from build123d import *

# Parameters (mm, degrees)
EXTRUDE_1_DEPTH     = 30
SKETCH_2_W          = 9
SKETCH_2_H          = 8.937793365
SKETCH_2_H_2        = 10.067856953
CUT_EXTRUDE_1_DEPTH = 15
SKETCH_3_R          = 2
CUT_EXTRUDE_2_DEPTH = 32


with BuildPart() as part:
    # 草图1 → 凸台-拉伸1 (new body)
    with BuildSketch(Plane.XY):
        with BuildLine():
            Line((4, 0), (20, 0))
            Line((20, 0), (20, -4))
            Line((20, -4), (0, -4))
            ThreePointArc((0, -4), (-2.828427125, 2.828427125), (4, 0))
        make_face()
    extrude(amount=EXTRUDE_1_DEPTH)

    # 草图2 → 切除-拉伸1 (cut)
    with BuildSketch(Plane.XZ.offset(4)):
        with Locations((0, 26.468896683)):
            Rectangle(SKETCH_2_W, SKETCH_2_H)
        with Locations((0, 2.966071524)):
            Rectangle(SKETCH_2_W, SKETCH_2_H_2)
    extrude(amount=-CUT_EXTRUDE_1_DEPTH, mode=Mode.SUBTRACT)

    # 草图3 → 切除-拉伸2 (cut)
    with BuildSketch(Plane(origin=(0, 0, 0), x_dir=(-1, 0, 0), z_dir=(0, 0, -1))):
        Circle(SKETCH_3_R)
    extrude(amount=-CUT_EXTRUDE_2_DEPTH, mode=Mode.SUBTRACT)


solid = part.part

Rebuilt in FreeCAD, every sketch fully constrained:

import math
import FreeCAD as App
import Part
import Sketcher
from FreeCAD import Vector

doc = App.newDocument("Part")
body = doc.addObject("PartDesign::Body", "Body")

# Sketch on XY plane
sketch1 = body.newObject("Sketcher::SketchObject", "Sketch")
sketch1.AttachmentSupport = (doc.getObject("XY_Plane"), [""])
sketch1.MapMode = "FlatFace"
sketch1.addGeometry(Part.LineSegment(Vector(20, 0, 0), Vector(4, 0, 0)), False)
sketch1.addGeometry(Part.ArcOfCircle(Part.Circle(Vector(0, 0, 0), Vector(0, 0, 1), 4), math.radians(0), math.radians(270)), False)
sketch1.addGeometry(Part.LineSegment(Vector(0, -4, 0), Vector(20, -4, 0)), False)
sketch1.addGeometry(Part.LineSegment(Vector(20, -4, 0), Vector(20, 0, 0)), False)
sketch1.addConstraint(Sketcher.Constraint("Coincident", 0, 2, 1, 1))
sketch1.addConstraint(Sketcher.Constraint("Tangent", 1, 2, 2, 1))
sketch1.addConstraint(Sketcher.Constraint("Coincident", 2, 2, 3, 1))
sketch1.addConstraint(Sketcher.Constraint("Coincident", 3, 2, 0, 1))
sketch1.addConstraint(Sketcher.Constraint("Horizontal", 0))
sketch1.addConstraint(Sketcher.Constraint("Horizontal", 2))
sketch1.addConstraint(Sketcher.Constraint("Vertical", 3))
sketch1.addConstraint(Sketcher.Constraint("Coincident", 1, 3, -1, 1))
sketch1.addConstraint(Sketcher.Constraint("PointOnObject", 0, 2, -1))
sketch1.addConstraint(Sketcher.Constraint("Radius", 1, 4.0))
sketch1.addConstraint(Sketcher.Constraint("DistanceX", 0, 2, 0, 1, 16.0))
pad1 = body.newObject("PartDesign::Pad", "Pad")
pad1.Profile = sketch1
pad1.Length = 30

# Sketch on XZ plane
sketch2 = body.newObject("Sketcher::SketchObject", "Sketch001")
sketch2.AttachmentSupport = (doc.getObject("XZ_Plane"), [""])
sketch2.MapMode = "FlatFace"
sketch2.AttachmentOffset = App.Placement(Vector(0, 0, 4), App.Rotation())
sketch2.addGeometry(Part.LineSegment(Vector(-4.5, 30.937793, 0), Vector(-4.5, 22, 0)), False)
sketch2.addGeometry(Part.LineSegment(Vector(-4.5, 22, 0), Vector(4.5, 22, 0)), False)
sketch2.addGeometry(Part.LineSegment(Vector(4.5, 22, 0), Vector(4.5, 30.937793, 0)), False)
sketch2.addGeometry(Part.LineSegment(Vector(4.5, 30.937793, 0), Vector(-4.5, 30.937793, 0)), False)
sketch2.addGeometry(Part.LineSegment(Vector(-4.5, 8, 0), Vector(-4.5, -2.067857, 0)), False)
sketch2.addGeometry(Part.LineSegment(Vector(-4.5, -2.067857, 0), Vector(4.5, -2.067857, 0)), False)
sketch2.addGeometry(Part.LineSegment(Vector(4.5, -2.067857, 0), Vector(4.5, 8, 0)), False)
sketch2.addGeometry(Part.LineSegment(Vector(4.5, 8, 0), Vector(-4.5, 8, 0)), False)
sketch2.addConstraint(Sketcher.Constraint("Coincident", 0, 2, 1, 1))
sketch2.addConstraint(Sketcher.Constraint("Coincident", 1, 2, 2, 1))
sketch2.addConstraint(Sketcher.Constraint("Coincident", 2, 2, 3, 1))
sketch2.addConstraint(Sketcher.Constraint("Coincident", 3, 2, 0, 1))
sketch2.addConstraint(Sketcher.Constraint("Coincident", 4, 2, 5, 1))
sketch2.addConstraint(Sketcher.Constraint("Coincident", 5, 2, 6, 1))
sketch2.addConstraint(Sketcher.Constraint("Coincident", 6, 2, 7, 1))
sketch2.addConstraint(Sketcher.Constraint("Coincident", 7, 2, 4, 1))
sketch2.addConstraint(Sketcher.Constraint("Vertical", 0))
sketch2.addConstraint(Sketcher.Constraint("Horizontal", 1))
sketch2.addConstraint(Sketcher.Constraint("Vertical", 2))
sketch2.addConstraint(Sketcher.Constraint("Horizontal", 3))
sketch2.addConstraint(Sketcher.Constraint("Vertical", 4))
sketch2.addConstraint(Sketcher.Constraint("Horizontal", 5))
sketch2.addConstraint(Sketcher.Constraint("Vertical", 6))
sketch2.addConstraint(Sketcher.Constraint("Horizontal", 7))
sketch2.addConstraint(Sketcher.Constraint("Vertical", 3, 2, 4, 2))
sketch2.addConstraint(Sketcher.Constraint("Vertical", 2, 2, 5, 2))
sketch2.addConstraint(Sketcher.Constraint("DistanceX", 1, 1, 1, 2, 9.0))
sketch2.addConstraint(Sketcher.Constraint("DistanceY", -1, 1, 0, 2, 22.0))
sketch2.addConstraint(Sketcher.Constraint("DistanceY", -1, 1, 6, 2, 8.0))
sketch2.addConstraint(Sketcher.Constraint("DistanceX", 0, 2, -1, 1, 4.5))
sketch2.addConstraint(Sketcher.Constraint("DistanceY", 0, 2, 0, 1, 8.937793))
sketch2.addConstraint(Sketcher.Constraint("DistanceY", 4, 2, 4, 1, 10.067857))
pocket1 = body.newObject("PartDesign::Pocket", "Pocket")
pocket1.Profile = sketch2
pocket1.Length = 15

# Sketch on XY plane
sketch3 = body.newObject("Sketcher::SketchObject", "Sketch002")
sketch3.AttachmentSupport = (doc.getObject("XY_Plane"), [""])
sketch3.MapMode = "FlatFace"
sketch3.addGeometry(Part.Circle(Vector(0, 0, 0), Vector(0, 0, 1), 2), False)
sketch3.addConstraint(Sketcher.Constraint("Coincident", 0, 3, -1, 1))
sketch3.addConstraint(Sketcher.Constraint("Diameter", 0, 4.0))
pocket2 = body.newObject("PartDesign::Pocket", "Pocket001")
pocket2.Profile = sketch3
pocket2.Length = 32
pocket2.Reversed = True

doc.recompute()
